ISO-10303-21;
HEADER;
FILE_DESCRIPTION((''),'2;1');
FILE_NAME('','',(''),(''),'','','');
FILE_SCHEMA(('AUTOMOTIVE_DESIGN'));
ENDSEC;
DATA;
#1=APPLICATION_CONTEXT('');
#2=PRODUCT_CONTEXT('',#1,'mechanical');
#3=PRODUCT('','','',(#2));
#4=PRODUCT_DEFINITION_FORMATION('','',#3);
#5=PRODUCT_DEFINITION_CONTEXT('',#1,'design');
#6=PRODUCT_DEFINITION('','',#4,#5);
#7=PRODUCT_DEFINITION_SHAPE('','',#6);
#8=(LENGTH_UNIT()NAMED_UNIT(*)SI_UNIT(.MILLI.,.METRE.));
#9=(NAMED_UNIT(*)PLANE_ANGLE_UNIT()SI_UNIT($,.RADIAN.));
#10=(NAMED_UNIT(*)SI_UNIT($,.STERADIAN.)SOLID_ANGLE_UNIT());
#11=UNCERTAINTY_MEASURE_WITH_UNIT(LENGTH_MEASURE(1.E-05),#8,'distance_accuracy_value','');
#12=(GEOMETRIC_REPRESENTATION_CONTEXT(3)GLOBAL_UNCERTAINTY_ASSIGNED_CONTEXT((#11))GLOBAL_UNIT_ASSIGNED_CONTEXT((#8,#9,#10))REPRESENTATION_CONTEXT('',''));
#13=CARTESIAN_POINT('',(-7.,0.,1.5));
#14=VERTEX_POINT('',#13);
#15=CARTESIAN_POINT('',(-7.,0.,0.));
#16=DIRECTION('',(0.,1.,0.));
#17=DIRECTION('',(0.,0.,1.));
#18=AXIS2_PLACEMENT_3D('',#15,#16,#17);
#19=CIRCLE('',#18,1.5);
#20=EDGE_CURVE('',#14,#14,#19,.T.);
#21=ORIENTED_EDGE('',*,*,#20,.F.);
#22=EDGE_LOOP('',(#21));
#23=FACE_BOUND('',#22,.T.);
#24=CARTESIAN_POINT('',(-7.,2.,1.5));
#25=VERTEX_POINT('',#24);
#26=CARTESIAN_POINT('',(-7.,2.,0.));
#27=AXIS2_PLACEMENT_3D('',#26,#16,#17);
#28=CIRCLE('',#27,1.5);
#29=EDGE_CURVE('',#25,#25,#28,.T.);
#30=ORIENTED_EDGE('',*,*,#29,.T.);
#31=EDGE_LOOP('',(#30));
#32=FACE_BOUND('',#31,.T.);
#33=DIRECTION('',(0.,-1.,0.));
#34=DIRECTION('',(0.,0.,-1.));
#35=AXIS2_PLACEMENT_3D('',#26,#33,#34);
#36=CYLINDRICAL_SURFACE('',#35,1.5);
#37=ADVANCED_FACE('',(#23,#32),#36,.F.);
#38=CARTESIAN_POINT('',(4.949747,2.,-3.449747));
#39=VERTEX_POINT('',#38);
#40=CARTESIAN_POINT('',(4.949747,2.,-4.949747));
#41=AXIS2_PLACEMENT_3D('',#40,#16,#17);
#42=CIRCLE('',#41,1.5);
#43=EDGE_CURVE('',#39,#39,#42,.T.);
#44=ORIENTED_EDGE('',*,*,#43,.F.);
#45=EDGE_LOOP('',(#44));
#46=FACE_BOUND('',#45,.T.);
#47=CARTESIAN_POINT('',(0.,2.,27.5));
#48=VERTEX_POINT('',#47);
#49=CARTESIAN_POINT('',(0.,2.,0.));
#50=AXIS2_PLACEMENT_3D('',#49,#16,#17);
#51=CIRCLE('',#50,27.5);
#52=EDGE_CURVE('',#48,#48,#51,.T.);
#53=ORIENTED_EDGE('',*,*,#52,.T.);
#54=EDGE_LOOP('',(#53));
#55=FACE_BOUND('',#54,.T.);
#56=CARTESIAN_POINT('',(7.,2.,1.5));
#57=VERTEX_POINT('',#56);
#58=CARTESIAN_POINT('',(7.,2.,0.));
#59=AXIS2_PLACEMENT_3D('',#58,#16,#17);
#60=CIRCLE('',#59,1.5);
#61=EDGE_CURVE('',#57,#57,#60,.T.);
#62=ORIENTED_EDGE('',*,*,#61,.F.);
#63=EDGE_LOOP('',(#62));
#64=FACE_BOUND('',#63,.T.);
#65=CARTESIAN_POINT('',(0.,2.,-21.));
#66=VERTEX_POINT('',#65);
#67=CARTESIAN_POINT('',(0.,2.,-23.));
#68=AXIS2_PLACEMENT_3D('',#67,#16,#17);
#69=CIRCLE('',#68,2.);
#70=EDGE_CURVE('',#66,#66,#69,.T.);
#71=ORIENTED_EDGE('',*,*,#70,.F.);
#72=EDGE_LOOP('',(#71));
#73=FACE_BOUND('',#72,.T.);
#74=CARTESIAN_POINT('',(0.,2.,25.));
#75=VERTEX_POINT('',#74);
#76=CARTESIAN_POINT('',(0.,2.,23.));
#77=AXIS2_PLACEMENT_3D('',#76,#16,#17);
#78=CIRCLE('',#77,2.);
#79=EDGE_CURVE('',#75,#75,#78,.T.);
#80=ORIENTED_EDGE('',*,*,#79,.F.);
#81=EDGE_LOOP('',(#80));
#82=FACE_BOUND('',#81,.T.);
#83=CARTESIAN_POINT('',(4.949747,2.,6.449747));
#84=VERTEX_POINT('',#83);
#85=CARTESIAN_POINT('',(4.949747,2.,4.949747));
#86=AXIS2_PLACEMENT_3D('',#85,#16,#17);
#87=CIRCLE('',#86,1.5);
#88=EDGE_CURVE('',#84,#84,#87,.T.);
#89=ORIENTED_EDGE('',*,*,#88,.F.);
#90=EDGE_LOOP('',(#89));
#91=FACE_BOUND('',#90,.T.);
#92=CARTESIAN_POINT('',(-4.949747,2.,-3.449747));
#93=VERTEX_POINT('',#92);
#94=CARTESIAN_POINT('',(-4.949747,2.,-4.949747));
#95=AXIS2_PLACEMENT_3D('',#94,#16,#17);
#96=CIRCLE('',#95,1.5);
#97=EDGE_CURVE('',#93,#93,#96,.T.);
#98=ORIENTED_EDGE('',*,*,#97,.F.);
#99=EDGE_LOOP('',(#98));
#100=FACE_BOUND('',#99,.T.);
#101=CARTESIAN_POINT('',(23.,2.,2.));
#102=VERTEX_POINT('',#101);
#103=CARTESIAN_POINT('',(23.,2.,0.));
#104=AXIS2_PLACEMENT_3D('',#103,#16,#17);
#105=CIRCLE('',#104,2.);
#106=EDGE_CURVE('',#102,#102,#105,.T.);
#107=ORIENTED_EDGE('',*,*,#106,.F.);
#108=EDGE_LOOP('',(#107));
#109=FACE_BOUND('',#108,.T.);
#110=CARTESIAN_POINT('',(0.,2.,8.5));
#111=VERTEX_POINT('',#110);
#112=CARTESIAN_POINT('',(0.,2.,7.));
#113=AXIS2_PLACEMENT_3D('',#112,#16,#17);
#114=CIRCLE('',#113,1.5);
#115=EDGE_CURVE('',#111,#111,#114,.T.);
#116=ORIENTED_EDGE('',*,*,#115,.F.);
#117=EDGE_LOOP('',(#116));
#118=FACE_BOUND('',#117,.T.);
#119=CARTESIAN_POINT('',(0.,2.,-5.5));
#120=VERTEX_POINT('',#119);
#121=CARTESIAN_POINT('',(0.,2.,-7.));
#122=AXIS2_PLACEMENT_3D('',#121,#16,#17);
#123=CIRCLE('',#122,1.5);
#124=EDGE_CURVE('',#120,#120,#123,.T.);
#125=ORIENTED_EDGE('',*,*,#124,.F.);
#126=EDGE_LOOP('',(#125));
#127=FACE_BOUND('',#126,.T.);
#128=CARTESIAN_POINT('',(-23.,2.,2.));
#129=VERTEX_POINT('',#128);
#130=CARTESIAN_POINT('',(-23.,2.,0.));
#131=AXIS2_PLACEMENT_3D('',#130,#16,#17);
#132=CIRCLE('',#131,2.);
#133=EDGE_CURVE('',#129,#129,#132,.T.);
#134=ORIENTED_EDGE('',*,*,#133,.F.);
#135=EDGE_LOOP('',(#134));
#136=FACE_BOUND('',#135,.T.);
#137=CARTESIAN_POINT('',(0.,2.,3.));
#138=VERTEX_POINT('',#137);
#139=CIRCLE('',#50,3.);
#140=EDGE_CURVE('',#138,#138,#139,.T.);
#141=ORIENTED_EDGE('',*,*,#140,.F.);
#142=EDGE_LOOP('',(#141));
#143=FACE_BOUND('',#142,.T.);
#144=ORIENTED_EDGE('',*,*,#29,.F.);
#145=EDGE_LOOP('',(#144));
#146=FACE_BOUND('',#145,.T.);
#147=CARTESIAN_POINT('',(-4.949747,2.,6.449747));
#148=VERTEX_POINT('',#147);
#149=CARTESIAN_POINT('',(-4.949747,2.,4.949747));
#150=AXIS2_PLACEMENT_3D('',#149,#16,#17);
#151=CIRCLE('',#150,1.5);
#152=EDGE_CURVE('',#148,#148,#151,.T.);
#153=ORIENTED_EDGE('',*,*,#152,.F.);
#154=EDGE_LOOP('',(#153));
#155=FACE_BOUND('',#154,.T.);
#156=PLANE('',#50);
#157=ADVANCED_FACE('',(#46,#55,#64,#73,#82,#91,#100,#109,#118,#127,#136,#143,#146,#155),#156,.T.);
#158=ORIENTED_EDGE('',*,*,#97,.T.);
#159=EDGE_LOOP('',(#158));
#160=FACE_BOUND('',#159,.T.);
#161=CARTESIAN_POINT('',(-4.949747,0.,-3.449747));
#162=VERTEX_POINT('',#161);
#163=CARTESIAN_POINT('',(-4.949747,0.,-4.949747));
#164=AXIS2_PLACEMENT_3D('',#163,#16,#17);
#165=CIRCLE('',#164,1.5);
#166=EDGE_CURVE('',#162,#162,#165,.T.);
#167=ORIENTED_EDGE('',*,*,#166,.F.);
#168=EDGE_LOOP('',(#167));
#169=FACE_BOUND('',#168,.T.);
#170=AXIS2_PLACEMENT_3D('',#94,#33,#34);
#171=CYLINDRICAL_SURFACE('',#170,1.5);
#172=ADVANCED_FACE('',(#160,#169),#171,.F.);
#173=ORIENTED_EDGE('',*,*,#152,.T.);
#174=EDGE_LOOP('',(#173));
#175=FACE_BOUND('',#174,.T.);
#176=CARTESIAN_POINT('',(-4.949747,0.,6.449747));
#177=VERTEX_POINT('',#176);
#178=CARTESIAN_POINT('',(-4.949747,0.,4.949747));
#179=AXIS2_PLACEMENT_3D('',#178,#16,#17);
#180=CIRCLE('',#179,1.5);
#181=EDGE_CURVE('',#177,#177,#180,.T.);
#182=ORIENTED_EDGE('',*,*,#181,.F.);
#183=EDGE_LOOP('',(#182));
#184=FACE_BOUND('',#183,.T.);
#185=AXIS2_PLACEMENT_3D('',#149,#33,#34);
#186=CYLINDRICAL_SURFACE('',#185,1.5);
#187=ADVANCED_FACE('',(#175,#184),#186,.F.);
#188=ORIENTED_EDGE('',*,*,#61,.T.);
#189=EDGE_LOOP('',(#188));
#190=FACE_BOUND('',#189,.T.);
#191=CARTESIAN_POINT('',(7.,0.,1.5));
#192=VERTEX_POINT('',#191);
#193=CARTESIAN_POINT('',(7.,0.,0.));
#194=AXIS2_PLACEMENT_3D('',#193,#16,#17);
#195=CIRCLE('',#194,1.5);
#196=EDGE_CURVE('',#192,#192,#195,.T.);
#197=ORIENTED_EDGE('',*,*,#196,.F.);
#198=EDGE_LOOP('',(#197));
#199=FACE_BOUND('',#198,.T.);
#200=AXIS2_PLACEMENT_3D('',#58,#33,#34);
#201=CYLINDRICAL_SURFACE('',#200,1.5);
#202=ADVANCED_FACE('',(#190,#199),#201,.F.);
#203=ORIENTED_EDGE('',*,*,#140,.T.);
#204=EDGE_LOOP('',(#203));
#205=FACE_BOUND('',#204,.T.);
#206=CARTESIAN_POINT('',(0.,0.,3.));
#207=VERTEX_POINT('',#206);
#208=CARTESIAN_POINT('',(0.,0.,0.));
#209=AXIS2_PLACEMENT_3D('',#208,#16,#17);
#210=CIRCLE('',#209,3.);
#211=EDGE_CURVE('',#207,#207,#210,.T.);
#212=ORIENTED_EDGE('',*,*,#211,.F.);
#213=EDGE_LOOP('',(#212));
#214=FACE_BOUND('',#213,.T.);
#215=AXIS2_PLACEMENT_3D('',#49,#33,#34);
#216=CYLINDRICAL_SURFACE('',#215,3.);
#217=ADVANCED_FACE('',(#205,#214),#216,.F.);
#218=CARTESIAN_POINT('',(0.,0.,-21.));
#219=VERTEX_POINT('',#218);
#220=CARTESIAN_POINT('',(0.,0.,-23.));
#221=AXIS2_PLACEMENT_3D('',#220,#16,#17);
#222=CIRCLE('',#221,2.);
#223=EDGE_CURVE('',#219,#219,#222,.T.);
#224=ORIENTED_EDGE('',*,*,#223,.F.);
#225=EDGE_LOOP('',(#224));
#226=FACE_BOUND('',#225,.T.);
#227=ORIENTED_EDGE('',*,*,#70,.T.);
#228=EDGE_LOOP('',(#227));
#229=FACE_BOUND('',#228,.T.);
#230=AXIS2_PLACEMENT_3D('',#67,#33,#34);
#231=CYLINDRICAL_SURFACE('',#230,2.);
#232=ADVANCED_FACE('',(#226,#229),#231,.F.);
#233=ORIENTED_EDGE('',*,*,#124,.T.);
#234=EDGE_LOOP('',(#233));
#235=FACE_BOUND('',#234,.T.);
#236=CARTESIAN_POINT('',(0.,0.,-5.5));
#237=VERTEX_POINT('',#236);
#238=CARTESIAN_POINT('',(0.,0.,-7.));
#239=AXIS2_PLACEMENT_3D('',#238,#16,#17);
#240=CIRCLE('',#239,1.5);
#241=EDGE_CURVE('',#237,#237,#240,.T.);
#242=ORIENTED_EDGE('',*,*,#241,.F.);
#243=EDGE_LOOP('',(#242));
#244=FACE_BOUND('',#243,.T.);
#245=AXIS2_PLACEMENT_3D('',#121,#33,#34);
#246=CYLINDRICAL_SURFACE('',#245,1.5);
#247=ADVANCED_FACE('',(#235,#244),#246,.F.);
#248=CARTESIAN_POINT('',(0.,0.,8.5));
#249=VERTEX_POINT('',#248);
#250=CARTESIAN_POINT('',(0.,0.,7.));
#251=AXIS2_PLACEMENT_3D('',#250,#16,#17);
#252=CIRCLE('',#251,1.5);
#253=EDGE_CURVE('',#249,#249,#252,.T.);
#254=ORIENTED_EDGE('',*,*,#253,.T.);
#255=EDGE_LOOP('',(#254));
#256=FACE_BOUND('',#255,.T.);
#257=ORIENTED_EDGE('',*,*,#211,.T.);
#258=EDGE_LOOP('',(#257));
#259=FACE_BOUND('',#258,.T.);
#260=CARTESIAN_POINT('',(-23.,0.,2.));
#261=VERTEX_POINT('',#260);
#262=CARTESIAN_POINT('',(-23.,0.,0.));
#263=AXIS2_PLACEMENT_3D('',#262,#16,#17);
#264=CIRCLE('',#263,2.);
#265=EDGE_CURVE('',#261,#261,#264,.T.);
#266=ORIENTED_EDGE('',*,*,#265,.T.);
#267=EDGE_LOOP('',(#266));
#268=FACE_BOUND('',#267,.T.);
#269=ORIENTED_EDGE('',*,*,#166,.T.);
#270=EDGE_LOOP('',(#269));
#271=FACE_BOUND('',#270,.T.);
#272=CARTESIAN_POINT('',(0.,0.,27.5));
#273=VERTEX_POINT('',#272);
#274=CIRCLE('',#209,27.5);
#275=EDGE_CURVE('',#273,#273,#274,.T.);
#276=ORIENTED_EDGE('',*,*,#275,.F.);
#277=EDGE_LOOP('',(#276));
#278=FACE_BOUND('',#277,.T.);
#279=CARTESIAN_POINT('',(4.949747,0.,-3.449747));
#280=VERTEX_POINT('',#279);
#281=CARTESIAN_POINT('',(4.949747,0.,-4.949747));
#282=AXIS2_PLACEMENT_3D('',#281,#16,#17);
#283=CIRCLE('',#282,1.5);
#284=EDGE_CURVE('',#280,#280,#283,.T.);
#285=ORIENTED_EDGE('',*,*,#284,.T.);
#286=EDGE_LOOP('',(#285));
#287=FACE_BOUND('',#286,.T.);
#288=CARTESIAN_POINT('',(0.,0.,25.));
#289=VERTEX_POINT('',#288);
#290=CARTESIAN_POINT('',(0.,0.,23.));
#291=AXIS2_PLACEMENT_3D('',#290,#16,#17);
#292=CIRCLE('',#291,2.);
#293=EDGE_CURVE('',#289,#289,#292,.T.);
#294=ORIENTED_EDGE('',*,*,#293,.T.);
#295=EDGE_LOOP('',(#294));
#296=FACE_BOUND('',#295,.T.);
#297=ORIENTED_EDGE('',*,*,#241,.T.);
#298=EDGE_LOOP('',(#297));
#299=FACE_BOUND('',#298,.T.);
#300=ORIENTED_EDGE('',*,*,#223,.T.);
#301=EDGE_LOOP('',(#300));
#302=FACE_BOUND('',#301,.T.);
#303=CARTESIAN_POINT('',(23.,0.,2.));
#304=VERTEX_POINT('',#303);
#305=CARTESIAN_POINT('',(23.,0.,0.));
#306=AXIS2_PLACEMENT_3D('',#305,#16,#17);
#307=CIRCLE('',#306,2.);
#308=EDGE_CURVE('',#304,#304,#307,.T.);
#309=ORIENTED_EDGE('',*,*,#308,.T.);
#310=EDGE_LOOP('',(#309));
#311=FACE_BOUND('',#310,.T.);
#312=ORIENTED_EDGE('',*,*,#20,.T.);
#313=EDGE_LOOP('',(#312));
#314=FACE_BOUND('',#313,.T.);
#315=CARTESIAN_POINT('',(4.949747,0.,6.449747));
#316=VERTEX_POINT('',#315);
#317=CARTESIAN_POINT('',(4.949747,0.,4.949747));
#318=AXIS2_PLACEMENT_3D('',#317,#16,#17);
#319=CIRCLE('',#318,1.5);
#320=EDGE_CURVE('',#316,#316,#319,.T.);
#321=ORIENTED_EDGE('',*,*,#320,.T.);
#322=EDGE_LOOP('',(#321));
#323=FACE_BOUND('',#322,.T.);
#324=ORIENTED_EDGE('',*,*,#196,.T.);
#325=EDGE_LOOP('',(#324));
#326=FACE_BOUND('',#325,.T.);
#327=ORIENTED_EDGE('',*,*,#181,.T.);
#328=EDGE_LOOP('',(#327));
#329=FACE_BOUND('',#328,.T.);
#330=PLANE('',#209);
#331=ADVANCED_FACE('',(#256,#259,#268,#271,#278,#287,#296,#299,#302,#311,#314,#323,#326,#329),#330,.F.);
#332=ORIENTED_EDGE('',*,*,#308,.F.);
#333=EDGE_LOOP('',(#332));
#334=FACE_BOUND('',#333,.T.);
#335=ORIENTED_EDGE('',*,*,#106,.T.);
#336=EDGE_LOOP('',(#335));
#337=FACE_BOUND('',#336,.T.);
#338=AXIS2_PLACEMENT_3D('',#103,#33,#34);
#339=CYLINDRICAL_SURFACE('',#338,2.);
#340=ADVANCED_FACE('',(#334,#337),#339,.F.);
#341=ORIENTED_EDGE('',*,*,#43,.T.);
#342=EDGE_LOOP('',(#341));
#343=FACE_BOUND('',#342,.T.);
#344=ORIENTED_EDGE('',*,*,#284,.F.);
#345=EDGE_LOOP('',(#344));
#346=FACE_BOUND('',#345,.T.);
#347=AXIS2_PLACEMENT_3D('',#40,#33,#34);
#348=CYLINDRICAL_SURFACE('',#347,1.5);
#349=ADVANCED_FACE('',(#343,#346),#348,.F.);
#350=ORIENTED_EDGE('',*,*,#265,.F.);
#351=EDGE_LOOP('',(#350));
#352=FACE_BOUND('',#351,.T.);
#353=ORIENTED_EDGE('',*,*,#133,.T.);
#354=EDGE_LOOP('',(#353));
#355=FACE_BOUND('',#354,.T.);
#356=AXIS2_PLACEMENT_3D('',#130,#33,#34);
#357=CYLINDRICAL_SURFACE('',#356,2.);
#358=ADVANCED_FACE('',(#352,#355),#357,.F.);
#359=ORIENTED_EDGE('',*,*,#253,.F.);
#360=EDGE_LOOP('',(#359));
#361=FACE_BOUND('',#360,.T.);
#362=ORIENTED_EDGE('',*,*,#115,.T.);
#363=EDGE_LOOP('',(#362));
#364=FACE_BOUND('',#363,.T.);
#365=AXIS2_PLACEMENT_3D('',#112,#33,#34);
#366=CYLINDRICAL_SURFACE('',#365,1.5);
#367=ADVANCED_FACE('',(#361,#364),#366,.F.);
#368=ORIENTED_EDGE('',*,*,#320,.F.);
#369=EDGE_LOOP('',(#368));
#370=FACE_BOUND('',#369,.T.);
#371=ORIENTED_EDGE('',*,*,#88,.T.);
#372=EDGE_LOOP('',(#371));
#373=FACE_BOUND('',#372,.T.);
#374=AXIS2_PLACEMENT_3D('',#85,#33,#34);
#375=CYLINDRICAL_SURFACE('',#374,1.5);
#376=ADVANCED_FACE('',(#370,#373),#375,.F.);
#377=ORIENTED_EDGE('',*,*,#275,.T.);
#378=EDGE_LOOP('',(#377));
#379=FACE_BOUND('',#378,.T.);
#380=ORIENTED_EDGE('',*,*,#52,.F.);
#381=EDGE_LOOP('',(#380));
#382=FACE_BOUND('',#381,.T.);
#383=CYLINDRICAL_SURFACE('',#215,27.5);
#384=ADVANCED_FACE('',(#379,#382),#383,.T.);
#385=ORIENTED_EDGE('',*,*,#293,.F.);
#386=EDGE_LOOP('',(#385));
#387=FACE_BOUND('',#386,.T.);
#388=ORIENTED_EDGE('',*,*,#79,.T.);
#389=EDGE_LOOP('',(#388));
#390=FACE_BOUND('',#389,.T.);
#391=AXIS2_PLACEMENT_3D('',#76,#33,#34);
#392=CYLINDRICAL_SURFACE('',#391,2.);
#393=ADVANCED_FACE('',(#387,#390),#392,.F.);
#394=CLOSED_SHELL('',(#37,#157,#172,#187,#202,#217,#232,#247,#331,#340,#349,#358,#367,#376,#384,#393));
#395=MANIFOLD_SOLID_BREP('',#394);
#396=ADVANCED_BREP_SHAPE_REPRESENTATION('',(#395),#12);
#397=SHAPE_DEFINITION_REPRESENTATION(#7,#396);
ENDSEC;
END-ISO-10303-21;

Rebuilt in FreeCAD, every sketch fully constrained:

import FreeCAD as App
import Part
import Sketcher

V = App.Vector
Q = App.Units.Quantity

doc = App.newDocument("Part")
params = doc.addObject("Spreadsheet::Sheet", "Params")
for row, (alias, value) in enumerate([
    ("sketch1_diameter", "55 mm"),
    ("sketch1_diameter2", "4 mm"),
    ("sketch1_diameter3", "3 mm"),
    ("sketch1_diameter4", "6 mm"),
    ("pad1_length", "2 mm"),
], start=1):
    params.set(f"A{row}", alias)
    params.set(f"B{row}", "=" + value)
    params.setAlias(f"B{row}", alias)

body = doc.addObject("PartDesign::Body", "Body")

sketch1 = body.newObject("Sketcher::SketchObject", "Sketch")
sketch1.AttachmentSupport = (doc.getObject("XZ_Plane"), [""])
sketch1.MapMode = "FlatFace"
sketch1.addGeometry(Part.Circle(V(0, 0, 0), V(0, 0, 1), 27.5), False)
sketch1.addGeometry(Part.Circle(V(0, -23, 0), V(0, 0, 1), 2), False)
sketch1.addGeometry(Part.Circle(V(-4.9, -4.9, 0), V(0, 0, 1), 1.5), False)
sketch1.addGeometry(Part.Circle(V(-23, 0, 0), V(0, 0, 1), 2), False)
sketch1.addGeometry(Part.Circle(V(-7, 0, 0), V(0, 0, 1), 1.5), False)
sketch1.addGeometry(Part.Circle(V(-4.9, 4.9, 0), V(0, 0, 1), 1.5), False)
sketch1.addGeometry(Part.Circle(V(0, -7, 0), V(0, 0, 1), 1.5), False)
sketch1.addGeometry(Part.Circle(V(4.9, -4.9, 0), V(0, 0, 1), 1.5), False)
sketch1.addGeometry(Part.Circle(V(23, 0, 0), V(0, 0, 1), 2), False)
sketch1.addGeometry(Part.Circle(V(0, 0, 0), V(0, 0, 1), 3), False)
sketch1.addGeometry(Part.Circle(V(4.9, 4.9, 0), V(0, 0, 1), 1.5), False)
sketch1.addGeometry(Part.Circle(V(0, 7, 0), V(0, 0, 1), 1.5), False)
sketch1.addGeometry(Part.Circle(V(7, 0, 0), V(0, 0, 1), 1.5), False)
sketch1.addGeometry(Part.Circle(V(0, 23, 0), V(0, 0, 1), 2), False)
sketch1.addConstraint(Sketcher.Constraint("Coincident", 0, 3, -1, 1))
sketch1.addConstraint(Sketcher.Constraint("Coincident", 9, 3, -1, 1))
sketch1.addConstraint(Sketcher.Constraint("Equal", 1, 3))
sketch1.addConstraint(Sketcher.Constraint("Equal", 2, 4))
sketch1.addConstraint(Sketcher.Constraint("Equal", 4, 5))
sketch1.addConstraint(Sketcher.Constraint("Equal", 5, 6))
sketch1.addConstraint(Sketcher.Constraint("Equal", 6, 7))
sketch1.addConstraint(Sketcher.Constraint("Equal", 3, 8))
sketch1.addConstraint(Sketcher.Constraint("Equal", 7, 10))
sketch1.addConstraint(Sketcher.Constraint("Equal", 10, 11))
sketch1.addConstraint(Sketcher.Constraint("Equal", 11, 12))
sketch1.addConstraint(Sketcher.Constraint("Equal", 8, 13))
sketch1.addConstraint(Sketcher.Constraint("Symmetric", 5, 3, 7, 3, -1, 1))
sketch1.addConstraint(Sketcher.Constraint("Symmetric", 3, 3, 8, 3, -1, 1))
sketch1.addConstraint(Sketcher.Constraint("Symmetric", 2, 3, 10, 3, -1, 1))
sketch1.addConstraint(Sketcher.Constraint("Symmetric", 6, 3, 11, 3, -1, 1))
sketch1.addConstraint(Sketcher.Constraint("Symmetric", 4, 3, 12, 3, -1, 1))
sketch1.addConstraint(Sketcher.Constraint("Symmetric", 1, 3, 13, 3, -1, 1))
sketch1.addConstraint(Sketcher.Constraint("Symmetric", 2, 3, 7, 3, -2))
sketch1.addConstraint(Sketcher.Constraint("PointOnObject", 1, 3, -2))
sketch1.addConstraint(Sketcher.Constraint("PointOnObject", 3, 3, -1))
sketch1.addConstraint(Sketcher.Constraint("PointOnObject", 4, 3, -1))
sketch1.addConstraint(Sketcher.Constraint("PointOnObject", 6, 3, -2))
sketch1.addConstraint(Sketcher.Constraint("Diameter", 0, Q("55 mm")))
sketch1.addConstraint(Sketcher.Constraint("Diameter", 1, Q("4 mm")))
sketch1.addConstraint(Sketcher.Constraint("Diameter", 2, Q("3 mm")))
sketch1.addConstraint(Sketcher.Constraint("Diameter", 9, Q("6 mm")))
sketch1.addConstraint(Sketcher.Constraint("DistanceY", 1, 3, -1, 1, Q("23 mm")))
sketch1.addConstraint(Sketcher.Constraint("DistanceX", 3, 3, -1, 1, Q("23 mm")))
sketch1.addConstraint(Sketcher.Constraint("DistanceX", 4, 3, -1, 1, Q("7 mm")))
sketch1.addConstraint(Sketcher.Constraint("DistanceY", 6, 3, -1, 1, Q("7 mm")))
sketch1.addConstraint(Sketcher.Constraint("DistanceX", 2, 3, -1, 1, Q("4.949747 mm")))
sketch1.addConstraint(Sketcher.Constraint("DistanceY", 2, 3, -1, 1, Q("4.949747 mm")))
sketch1.setExpression("Constraints[23]", "Params.sketch1_diameter")
sketch1.setExpression("Constraints[24]", "Params.sketch1_diameter2")
sketch1.setExpression("Constraints[25]", "Params.sketch1_diameter3")
sketch1.setExpression("Constraints[26]", "Params.sketch1_diameter4")
pad1 = body.newObject("PartDesign::Pad", "Pad")
pad1.Profile = sketch1
pad1.setExpression("Length", "Params.pad1_length")
pad1.Reversed = True

doc.recompute()
